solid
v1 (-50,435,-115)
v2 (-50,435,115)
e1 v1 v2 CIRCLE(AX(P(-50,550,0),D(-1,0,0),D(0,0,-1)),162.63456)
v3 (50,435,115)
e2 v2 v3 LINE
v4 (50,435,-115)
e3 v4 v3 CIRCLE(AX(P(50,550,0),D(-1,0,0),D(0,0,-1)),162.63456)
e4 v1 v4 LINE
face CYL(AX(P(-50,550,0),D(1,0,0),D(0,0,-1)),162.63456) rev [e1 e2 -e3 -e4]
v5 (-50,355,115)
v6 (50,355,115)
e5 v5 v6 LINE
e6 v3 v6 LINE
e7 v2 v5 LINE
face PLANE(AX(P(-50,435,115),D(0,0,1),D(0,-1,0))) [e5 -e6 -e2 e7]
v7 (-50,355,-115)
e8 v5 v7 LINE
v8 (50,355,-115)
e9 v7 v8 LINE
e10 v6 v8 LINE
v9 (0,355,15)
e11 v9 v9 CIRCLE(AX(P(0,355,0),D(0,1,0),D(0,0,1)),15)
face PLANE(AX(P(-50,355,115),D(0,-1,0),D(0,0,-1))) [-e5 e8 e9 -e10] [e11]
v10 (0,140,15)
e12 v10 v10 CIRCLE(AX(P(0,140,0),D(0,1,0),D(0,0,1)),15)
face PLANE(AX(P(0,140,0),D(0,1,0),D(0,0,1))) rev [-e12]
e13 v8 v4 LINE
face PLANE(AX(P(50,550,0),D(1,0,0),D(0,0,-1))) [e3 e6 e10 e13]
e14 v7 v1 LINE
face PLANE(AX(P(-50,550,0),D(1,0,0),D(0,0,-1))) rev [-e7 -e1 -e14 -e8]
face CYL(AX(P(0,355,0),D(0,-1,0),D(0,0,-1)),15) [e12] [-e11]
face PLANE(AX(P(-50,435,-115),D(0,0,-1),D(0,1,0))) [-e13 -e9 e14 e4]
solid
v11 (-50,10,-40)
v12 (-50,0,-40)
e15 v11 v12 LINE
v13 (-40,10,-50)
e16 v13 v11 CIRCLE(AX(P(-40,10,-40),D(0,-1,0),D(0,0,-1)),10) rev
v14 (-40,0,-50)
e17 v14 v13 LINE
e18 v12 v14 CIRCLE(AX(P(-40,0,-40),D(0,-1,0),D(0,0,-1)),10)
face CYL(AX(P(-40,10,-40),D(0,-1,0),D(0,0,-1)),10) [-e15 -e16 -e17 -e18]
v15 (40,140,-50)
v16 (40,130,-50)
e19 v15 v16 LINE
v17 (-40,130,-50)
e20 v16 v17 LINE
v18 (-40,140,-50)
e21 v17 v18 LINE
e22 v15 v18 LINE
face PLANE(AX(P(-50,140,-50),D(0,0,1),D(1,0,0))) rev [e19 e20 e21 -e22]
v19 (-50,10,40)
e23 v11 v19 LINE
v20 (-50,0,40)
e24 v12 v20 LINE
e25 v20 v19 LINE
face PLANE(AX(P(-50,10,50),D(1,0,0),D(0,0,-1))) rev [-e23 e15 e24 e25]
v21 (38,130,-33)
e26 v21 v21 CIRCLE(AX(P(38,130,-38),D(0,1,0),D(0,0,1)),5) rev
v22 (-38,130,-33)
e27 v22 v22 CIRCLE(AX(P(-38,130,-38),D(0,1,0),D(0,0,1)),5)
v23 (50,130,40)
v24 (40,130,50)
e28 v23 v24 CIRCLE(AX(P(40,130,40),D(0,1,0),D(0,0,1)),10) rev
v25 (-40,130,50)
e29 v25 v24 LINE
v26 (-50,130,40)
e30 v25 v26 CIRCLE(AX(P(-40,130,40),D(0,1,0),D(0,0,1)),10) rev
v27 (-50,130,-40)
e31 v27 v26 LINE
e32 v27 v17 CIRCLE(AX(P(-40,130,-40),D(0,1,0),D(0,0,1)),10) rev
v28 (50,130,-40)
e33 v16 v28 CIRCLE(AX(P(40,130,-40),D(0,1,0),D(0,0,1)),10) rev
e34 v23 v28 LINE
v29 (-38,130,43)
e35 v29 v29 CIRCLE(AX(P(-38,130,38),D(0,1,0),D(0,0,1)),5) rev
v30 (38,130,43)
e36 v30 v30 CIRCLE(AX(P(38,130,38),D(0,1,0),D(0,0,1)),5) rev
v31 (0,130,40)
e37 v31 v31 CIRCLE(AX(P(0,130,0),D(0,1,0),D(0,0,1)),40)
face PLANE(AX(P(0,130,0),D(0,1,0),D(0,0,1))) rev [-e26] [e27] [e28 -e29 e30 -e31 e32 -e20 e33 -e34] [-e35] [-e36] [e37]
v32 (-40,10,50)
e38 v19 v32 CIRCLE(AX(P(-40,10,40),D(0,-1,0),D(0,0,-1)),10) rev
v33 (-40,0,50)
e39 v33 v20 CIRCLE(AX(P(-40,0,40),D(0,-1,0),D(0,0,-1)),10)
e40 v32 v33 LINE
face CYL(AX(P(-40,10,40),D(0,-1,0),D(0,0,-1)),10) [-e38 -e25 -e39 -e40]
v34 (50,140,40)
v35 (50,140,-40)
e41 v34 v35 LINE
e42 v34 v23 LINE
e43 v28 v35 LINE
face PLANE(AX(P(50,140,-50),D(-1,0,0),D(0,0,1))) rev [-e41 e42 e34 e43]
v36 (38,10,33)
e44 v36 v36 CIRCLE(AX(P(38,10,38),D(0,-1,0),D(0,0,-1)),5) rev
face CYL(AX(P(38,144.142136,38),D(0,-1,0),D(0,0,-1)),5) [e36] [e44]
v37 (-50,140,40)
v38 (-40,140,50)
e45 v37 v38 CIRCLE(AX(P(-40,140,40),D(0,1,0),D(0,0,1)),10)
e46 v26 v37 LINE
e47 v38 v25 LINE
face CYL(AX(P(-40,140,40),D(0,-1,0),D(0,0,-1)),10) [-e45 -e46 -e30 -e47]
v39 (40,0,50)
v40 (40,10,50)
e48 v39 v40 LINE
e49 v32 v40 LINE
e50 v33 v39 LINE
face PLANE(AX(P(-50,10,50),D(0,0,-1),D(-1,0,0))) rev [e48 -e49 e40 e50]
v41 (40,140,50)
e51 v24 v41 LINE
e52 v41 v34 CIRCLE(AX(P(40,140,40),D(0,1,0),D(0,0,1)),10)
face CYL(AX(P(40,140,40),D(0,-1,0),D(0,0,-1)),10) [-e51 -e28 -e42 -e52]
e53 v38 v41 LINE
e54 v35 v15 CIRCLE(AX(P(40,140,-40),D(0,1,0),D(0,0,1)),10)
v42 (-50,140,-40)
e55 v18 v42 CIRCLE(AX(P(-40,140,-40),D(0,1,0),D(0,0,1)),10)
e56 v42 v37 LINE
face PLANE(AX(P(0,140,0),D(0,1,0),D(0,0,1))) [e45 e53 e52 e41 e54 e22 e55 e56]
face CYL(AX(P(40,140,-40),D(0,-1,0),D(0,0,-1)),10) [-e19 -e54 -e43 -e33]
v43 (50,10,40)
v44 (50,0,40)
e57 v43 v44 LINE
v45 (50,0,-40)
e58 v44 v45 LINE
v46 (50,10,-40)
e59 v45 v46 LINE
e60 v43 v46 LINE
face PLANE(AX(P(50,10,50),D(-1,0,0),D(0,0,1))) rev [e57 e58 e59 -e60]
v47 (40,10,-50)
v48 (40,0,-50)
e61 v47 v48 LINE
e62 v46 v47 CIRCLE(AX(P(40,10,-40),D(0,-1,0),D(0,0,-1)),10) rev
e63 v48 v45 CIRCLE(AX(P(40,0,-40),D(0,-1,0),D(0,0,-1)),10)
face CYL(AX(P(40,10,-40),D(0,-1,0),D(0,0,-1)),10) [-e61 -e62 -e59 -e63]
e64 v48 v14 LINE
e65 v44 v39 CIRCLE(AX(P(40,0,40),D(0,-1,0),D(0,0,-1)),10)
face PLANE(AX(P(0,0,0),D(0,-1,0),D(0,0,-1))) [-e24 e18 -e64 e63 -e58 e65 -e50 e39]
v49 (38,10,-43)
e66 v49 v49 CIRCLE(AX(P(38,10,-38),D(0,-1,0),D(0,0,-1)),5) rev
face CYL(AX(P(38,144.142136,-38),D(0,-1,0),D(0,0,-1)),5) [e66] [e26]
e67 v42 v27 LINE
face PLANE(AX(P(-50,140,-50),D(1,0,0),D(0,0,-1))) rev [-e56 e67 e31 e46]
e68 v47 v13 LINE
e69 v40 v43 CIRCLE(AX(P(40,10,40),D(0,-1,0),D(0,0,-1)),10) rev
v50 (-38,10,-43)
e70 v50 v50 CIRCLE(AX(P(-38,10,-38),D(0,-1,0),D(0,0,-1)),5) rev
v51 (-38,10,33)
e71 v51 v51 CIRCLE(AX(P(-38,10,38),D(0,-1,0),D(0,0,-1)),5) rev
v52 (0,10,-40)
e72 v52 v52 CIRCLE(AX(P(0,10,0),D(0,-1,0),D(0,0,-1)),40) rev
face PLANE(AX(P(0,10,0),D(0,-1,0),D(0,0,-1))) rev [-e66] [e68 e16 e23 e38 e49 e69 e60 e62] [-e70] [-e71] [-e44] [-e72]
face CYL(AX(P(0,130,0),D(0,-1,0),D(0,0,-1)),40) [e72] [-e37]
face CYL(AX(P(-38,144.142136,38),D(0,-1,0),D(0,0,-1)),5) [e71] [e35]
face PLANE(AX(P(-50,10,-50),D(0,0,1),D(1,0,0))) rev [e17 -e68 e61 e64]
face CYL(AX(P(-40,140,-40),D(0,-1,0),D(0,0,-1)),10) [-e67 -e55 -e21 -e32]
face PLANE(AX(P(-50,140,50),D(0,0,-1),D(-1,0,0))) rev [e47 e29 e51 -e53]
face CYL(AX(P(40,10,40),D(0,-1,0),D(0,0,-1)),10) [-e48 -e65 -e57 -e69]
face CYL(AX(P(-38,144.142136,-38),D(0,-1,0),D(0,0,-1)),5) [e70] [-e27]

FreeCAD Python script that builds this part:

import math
import FreeCAD as App
import Part
import Sketcher
from FreeCAD import Vector


def edges_at(feature, points):
    """Names of the edges that pass closest to the given points."""
    edges = feature.Shape.Edges
    near = lambda p: min(range(len(edges)), key=lambda i: edges[i].distToShape(Part.Vertex(*p))[0])
    return sorted({f"Edge{near(p) + 1}" for p in points})

doc = App.newDocument("Part")
body = doc.addObject("PartDesign::Body", "Body")

sketch1 = doc.addObject("Sketcher::SketchObject", "Sketch")
body.addObject(sketch1)
sketch1.AttachmentSupport = (doc.XZ_Plane, [""])
sketch1.MapMode = "FlatFace"
sketch1.addGeometry([
    Part.LineSegment(Vector(-50, -50, 0), Vector(-50, 50, 0)),
    Part.LineSegment(Vector(-50, 50, 0), Vector(50, 50, 0)),
    Part.LineSegment(Vector(50, 50, 0), Vector(50, -50, 0)),
    Part.LineSegment(Vector(50, -50, 0), Vector(-50, -50, 0)),
], False)
sketch1.addConstraint([
    Sketcher.Constraint("Coincident", 0, 2, 1, 1),
    Sketcher.Constraint("Coincident", 1, 2, 2, 1),
    Sketcher.Constraint("Coincident", 2, 2, 3, 1),
    Sketcher.Constraint("Coincident", 3, 2, 0, 1),
    Sketcher.Constraint("Vertical", 0),
    Sketcher.Constraint("Horizontal", 1),
    Sketcher.Constraint("Vertical", 2),
    Sketcher.Constraint("Horizontal", 3),
    Sketcher.Constraint("Symmetric", 0, 2, 2, 2, -1, 1),
    Sketcher.Constraint("Equal", 3, 0),
    Sketcher.Constraint("DistanceX", 1, 1, 1, 2, 100.0),
])
pad1 = doc.addObject("PartDesign::Pad", "Pad")
body.addObject(pad1)
pad1.Profile = sketch1
pad1.Length = 10
pad1.Reversed = True
body2 = doc.addObject("PartDesign::Body", "Body001")

sketch2 = doc.addObject("Sketcher::SketchObject", "Sketch001")
body2.addObject(sketch2)
sketch2.AttachmentSupport = (doc.getObject("XZ_Plane001"), [""])
sketch2.MapMode = "FlatFace"
sketch2.AttachmentOffset = App.Placement(Vector(0, 0, -10), App.Rotation())
sketch2.addGeometry(Part.Circle(Vector(0, 0, 0), Vector(0, 0, 1), 40), False)
sketch2.addConstraint([
    Sketcher.Constraint("Coincident", 0, 3, -1, 1),
    Sketcher.Constraint("Diameter", 0, 80.0),
])
pad2 = doc.addObject("PartDesign::Pad", "Pad001")
body2.addObject(pad2)
pad2.Profile = sketch2
pad2.Length = 120
pad2.Reversed = True
body3 = doc.addObject("PartDesign::Body", "Body002")

sketch3 = doc.addObject("Sketcher::SketchObject", "Sketch002")
body3.addObject(sketch3)
sketch3.AttachmentSupport = (doc.getObject("XZ_Plane002"), [""])
sketch3.MapMode = "FlatFace"
sketch3.AttachmentOffset = App.Placement(Vector(0, 0, -130), App.Rotation())
sketch3.addGeometry([
    Part.LineSegment(Vector(-50, -50, 0), Vector(-50, 50, 0)),
    Part.LineSegment(Vector(-50, 50, 0), Vector(50, 50, 0)),
    Part.LineSegment(Vector(50, 50, 0), Vector(50, -50, 0)),
    Part.LineSegment(Vector(50, -50, 0), Vector(-50, -50, 0)),
], False)
sketch3.addConstraint([
    Sketcher.Constraint("Coincident", 0, 2, 1, 1),
    Sketcher.Constraint("Coincident", 1, 2, 2, 1),
    Sketcher.Constraint("Coincident", 2, 2, 3, 1),
    Sketcher.Constraint("Coincident", 3, 2, 0, 1),
    Sketcher.Constraint("Vertical", 0),
    Sketcher.Constraint("Horizontal", 1),
    Sketcher.Constraint("Vertical", 2),
    Sketcher.Constraint("Horizontal", 3),
    Sketcher.Constraint("Symmetric", 0, 2, 2, 2, -1, 1),
    Sketcher.Constraint("Equal", 3, 0),
    Sketcher.Constraint("DistanceX", 1, 1, 1, 2, 100.0),
])
pad3 = doc.addObject("PartDesign::Pad", "Pad002")
body3.addObject(pad3)
pad3.Profile = sketch3
pad3.Length = 10
pad3.Reversed = True
body4 = doc.addObject("PartDesign::Body", "Body003")

sketch4 = doc.addObject("Sketcher::SketchObject", "Sketch003")
body4.addObject(sketch4)
sketch4.AttachmentSupport = (doc.getObject("XZ_Plane003"), [""])
sketch4.MapMode = "FlatFace"
sketch4.AttachmentOffset = App.Placement(Vector(0, 0, -140), App.Rotation())
sketch4.addGeometry(Part.Circle(Vector(0, 0, 0), Vector(0, 0, 1), 15), False)
sketch4.addConstraint([
    Sketcher.Constraint("Coincident", 0, 3, -1, 1),
    Sketcher.Constraint("Diameter", 0, 30.0),
])
pad4 = doc.addObject("PartDesign::Pad", "Pad003")
body4.addObject(pad4)
pad4.Profile = sketch4
pad4.Length = 215
pad4.Reversed = True

sketch5 = doc.addObject("Sketcher::SketchObject", "Sketch004")
body4.addObject(sketch5)
sketch5.AttachmentSupport = (doc.getObject("YZ_Plane003"), [""])
sketch5.MapMode = "FlatFace"
sketch5.addGeometry([
    Part.LineSegment(Vector(435, 115, 0), Vector(355, 115, 0)),
    Part.LineSegment(Vector(355, 115, 0), Vector(355, -115, 0)),
    Part.LineSegment(Vector(355, -115, 0), Vector(435, -115, 0)),
    Part.ArcOfCircle(Part.Circle(Vector(550, 0, 0), Vector(0, 0, 1), 163), math.radians(135), math.radians(225)),
], False)
sketch5.addConstraint([
    Sketcher.Constraint("Coincident", 0, 2, 1, 1),
    Sketcher.Constraint("Coincident", 1, 2, 2, 1),
    Sketcher.Constraint("Coincident", 2, 2, 3, 2),
    Sketcher.Constraint("Coincident", 3, 1, 0, 1),
    Sketcher.Constraint("Horizontal", 0),
    Sketcher.Constraint("Vertical", 1),
    Sketcher.Constraint("Horizontal", 2),
    Sketcher.Constraint("Symmetric", 2, 2, 3, 1, -1),
    Sketcher.Constraint("DistanceX", 0, 2, 0, 1, 80.0),
    Sketcher.Constraint("DistanceY", 1, 2, 1, 1, 230.0),
    Sketcher.Constraint("DistanceX", -1, 1, 3, 3, 550.0),
    Sketcher.Constraint("DistanceX", -1, 1, 0, 2, 355.0),
])
pad5 = doc.addObject("PartDesign::Pad", "Pad004")
body4.addObject(pad5)
pad5.Profile = sketch5
pad5.Type = "TwoLengths"
pad5.Length = 50
pad5.Length2 = 50
doc.recompute()

boolean = doc.addObject("PartDesign::Boolean", "Boolean")
body.addObject(boolean)
boolean.Type = "Fuse"
boolean.addObjects([body2])
doc.recompute()

boolean2 = doc.addObject("PartDesign::Boolean", "Boolean001")
body.addObject(boolean2)
boolean2.Type = "Fuse"
boolean2.addObjects([body3])

sketch6 = doc.addObject("Sketcher::SketchObject", "Sketch005")
body.addObject(sketch6)
sketch6.AttachmentSupport = (doc.XZ_Plane, [""])
sketch6.MapMode = "FlatFace"
sketch6.AttachmentOffset = App.Placement(Vector(0, 0, -10), App.Rotation())
sketch6.addGeometry([
    Part.Circle(Vector(-38, -38, 0), Vector(0, 0, 1), 5),
    Part.Circle(Vector(38, -38, 0), Vector(0, 0, 1), 5),
    Part.Circle(Vector(38, 38, 0), Vector(0, 0, 1), 5),
    Part.Circle(Vector(-38, 38, 0), Vector(0, 0, 1), 5),
], False)
sketch6.addConstraint([
    Sketcher.Constraint("Equal", 0, 1),
    Sketcher.Constraint("Equal", 1, 2),
    Sketcher.Constraint("Equal", 2, 3),
    Sketcher.Constraint("Symmetric", 0, 3, 2, 3, -1, 1),
    Sketcher.Constraint("Symmetric", 1, 3, 3, 3, -1, 1),
    Sketcher.Constraint("Symmetric", 0, 3, 1, 3, -2),
    Sketcher.Constraint("Diameter", 0, 10.0),
    Sketcher.Constraint("DistanceX", 0, 3, -1, 1, 38.0),
    Sketcher.Constraint("DistanceY", 0, 3, -1, 1, 38.0),
])
pad6 = doc.addObject("PartDesign::Pad", "Pad005")
body.addObject(pad6)
pad6.Profile = sketch6
pad6.Length = 120
pad6.Reversed = True
doc.recompute()

fillet = doc.addObject("PartDesign::Fillet", "Fillet")
body.addObject(fillet)
fillet.Base = (pad6, edges_at(pad6, [
    (-50, 135, -50),
    (-50, 135, 50),
    (50, 135, 50),
    (50, 135, -50),
    (50, 5, 50),
    (-50, 5, 50),
    (-50, 5, -50),
    (50, 5, -50),
]))
fillet.Radius = 10

doc.recompute()
